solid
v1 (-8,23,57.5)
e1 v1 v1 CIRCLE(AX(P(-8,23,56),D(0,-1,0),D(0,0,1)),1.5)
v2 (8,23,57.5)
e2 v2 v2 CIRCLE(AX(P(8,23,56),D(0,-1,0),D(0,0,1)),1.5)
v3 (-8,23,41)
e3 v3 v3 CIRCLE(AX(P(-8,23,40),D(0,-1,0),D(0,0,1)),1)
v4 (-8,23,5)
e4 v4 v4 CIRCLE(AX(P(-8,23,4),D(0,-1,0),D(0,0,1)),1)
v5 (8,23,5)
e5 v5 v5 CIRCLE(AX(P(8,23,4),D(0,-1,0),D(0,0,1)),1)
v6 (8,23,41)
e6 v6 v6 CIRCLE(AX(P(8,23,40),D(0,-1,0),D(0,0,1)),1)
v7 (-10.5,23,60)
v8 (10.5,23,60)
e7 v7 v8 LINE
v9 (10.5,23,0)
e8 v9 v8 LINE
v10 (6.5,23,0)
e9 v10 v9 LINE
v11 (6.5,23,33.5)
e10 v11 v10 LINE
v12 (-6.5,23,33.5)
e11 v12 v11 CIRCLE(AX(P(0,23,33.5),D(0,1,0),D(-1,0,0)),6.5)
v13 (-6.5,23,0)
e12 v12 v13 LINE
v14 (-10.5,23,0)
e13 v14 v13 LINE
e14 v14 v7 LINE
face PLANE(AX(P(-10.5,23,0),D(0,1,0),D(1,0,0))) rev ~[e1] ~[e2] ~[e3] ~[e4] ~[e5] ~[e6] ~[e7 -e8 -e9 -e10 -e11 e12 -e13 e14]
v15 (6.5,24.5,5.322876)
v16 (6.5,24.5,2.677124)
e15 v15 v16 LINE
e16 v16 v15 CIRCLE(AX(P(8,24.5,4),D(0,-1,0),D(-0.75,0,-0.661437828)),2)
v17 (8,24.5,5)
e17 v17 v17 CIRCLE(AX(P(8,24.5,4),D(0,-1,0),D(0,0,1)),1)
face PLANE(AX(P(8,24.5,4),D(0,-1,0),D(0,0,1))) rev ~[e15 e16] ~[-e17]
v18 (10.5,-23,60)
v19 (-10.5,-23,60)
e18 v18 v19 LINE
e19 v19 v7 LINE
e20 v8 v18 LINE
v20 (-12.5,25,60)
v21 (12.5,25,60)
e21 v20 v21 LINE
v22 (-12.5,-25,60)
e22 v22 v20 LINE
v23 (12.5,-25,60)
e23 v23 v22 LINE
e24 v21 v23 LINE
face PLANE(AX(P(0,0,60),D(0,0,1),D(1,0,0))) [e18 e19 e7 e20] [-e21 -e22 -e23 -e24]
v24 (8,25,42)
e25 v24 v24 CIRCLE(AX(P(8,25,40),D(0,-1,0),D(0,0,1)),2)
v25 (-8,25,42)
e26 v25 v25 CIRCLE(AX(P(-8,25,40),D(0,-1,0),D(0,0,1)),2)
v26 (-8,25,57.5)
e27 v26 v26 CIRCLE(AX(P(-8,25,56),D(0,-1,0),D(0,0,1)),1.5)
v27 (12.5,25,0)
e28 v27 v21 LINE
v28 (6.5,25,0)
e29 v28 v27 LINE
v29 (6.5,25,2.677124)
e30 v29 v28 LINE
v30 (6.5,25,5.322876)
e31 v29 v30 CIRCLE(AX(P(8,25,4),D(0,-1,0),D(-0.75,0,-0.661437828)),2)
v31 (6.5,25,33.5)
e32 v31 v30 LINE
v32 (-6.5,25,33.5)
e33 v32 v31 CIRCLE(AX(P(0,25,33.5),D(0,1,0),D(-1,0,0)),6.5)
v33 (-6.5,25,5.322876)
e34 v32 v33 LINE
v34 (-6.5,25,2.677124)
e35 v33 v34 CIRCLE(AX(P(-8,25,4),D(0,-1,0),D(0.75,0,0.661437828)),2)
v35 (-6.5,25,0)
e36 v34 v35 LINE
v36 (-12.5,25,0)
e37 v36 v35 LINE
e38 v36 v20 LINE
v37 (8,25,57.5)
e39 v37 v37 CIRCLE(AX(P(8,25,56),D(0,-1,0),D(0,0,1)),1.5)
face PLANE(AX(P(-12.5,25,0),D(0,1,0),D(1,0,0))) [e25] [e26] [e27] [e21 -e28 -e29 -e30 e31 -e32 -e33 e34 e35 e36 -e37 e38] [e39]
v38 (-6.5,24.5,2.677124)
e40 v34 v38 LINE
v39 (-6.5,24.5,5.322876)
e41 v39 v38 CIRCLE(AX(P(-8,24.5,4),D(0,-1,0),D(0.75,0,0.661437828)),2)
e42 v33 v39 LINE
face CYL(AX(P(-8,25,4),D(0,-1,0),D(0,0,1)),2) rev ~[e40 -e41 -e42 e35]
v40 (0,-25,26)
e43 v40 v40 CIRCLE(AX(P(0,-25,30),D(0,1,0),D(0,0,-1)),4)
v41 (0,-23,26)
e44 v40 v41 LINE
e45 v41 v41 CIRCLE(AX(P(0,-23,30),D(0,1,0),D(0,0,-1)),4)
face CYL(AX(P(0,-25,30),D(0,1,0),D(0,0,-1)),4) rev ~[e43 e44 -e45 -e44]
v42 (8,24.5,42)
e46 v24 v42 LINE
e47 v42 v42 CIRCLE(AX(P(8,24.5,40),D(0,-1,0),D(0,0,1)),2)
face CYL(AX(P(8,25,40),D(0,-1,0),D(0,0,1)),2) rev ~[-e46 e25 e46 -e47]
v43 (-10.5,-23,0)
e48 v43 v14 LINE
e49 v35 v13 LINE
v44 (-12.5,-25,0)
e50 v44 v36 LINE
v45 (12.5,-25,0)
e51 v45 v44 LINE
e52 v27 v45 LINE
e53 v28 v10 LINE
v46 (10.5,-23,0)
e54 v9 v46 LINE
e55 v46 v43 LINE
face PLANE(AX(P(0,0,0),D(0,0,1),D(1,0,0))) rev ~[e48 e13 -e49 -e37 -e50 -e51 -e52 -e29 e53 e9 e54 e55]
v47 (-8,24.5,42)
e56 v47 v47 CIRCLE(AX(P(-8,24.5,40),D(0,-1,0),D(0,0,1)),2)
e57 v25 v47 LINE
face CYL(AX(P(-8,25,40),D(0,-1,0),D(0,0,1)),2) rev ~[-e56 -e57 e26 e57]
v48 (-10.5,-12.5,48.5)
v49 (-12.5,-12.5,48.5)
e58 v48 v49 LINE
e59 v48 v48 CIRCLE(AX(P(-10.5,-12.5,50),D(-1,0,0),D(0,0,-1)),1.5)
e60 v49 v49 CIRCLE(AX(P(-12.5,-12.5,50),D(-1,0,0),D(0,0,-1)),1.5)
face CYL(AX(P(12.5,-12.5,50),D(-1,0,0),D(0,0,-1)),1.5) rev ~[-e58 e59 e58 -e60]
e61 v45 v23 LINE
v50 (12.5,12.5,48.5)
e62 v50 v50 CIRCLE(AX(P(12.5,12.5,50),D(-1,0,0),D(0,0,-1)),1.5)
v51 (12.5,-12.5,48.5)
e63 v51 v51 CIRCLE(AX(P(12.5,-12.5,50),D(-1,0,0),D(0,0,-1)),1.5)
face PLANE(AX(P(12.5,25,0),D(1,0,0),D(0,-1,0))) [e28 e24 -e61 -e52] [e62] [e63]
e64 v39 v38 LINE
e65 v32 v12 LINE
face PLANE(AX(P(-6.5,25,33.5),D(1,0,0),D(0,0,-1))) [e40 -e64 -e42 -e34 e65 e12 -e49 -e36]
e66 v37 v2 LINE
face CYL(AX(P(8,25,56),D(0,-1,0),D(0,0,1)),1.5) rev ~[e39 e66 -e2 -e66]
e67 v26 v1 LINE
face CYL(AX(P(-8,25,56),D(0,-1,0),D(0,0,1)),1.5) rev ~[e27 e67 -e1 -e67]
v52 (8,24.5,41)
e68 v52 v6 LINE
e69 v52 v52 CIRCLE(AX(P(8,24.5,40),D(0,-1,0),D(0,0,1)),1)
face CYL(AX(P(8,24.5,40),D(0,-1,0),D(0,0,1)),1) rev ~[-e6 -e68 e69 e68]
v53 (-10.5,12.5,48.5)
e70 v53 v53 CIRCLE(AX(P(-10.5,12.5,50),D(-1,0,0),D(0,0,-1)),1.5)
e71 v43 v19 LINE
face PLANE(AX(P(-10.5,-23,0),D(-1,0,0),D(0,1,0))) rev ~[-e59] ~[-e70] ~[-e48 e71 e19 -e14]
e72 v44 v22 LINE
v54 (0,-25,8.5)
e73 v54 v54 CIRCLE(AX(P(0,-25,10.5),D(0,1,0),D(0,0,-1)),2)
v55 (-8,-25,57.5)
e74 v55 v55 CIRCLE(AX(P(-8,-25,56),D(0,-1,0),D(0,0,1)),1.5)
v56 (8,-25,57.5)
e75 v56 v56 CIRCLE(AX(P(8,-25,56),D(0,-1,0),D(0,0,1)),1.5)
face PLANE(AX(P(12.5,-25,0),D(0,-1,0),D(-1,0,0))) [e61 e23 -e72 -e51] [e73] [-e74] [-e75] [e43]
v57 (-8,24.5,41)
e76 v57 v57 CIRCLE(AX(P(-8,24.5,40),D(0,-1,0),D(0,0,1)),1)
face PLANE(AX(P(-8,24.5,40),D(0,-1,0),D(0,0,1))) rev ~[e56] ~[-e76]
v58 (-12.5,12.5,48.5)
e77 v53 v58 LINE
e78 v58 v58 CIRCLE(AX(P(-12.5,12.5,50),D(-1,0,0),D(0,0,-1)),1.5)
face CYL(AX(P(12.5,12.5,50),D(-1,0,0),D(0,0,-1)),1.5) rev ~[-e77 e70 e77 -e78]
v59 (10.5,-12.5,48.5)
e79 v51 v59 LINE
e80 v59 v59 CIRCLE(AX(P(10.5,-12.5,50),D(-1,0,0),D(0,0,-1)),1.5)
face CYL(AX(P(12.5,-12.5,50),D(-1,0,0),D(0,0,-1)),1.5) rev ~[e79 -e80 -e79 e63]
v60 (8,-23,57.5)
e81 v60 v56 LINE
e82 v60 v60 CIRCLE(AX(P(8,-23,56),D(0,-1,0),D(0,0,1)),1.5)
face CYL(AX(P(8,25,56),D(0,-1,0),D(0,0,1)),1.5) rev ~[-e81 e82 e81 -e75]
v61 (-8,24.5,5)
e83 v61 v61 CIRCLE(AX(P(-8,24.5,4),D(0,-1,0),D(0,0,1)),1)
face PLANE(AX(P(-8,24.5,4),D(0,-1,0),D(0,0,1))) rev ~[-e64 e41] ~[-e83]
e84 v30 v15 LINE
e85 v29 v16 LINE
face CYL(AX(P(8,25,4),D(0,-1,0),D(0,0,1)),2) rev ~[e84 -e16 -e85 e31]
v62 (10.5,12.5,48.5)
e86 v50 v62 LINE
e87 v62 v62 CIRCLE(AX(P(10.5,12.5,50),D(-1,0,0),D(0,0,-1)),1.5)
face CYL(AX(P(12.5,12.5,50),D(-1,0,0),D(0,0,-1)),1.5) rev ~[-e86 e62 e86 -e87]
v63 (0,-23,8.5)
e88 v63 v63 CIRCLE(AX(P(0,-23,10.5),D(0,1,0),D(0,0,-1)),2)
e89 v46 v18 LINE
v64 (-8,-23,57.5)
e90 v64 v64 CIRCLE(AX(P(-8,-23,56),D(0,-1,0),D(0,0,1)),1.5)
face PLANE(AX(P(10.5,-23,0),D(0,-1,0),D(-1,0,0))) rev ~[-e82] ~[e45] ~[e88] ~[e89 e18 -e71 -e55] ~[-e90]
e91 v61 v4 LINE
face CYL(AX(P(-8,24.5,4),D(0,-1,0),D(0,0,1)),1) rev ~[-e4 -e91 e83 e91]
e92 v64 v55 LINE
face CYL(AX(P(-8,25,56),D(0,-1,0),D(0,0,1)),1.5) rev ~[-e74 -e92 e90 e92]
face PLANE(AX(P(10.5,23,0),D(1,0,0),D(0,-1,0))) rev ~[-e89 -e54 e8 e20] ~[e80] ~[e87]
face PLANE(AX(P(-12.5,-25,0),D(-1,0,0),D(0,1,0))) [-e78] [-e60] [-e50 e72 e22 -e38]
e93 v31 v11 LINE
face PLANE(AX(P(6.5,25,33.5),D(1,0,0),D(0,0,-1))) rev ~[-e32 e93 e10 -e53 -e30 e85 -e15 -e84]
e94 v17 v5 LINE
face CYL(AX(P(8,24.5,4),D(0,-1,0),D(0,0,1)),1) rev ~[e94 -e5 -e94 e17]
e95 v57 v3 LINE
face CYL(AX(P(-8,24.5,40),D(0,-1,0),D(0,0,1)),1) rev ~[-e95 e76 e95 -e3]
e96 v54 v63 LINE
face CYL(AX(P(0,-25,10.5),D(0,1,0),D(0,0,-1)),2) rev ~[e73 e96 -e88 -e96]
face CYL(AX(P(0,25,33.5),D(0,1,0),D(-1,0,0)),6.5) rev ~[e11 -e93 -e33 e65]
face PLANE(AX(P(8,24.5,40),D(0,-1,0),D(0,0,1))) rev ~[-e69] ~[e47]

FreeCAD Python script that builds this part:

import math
import FreeCAD as App
import Part
import Sketcher

V = App.Vector

doc = App.newDocument("Part")
params = doc.addObject("Spreadsheet::Sheet", "Params")
for row, (alias, value) in enumerate([
    ("sketch1_width", "25 mm"),
    ("sketch1_width2", "21 mm"),
    ("sketch1_height", "50 mm"),
    ("sketch1_height2", "46 mm"),
    ("pad1_length", "60 mm"),
    ("sketch2_radius", "6.5 mm"),
    ("sketch2_height", "33.5 mm"),
    ("pocket1_length", "2 mm"),
    ("sketch3_diameter", "2 mm"),
    ("hole_diameter", "2 mm"),
    ("hole_depth", "2 mm"),
    ("hole_cbore_diameter", "4 mm"),
    ("hole_cbore_depth", "0.5 mm"),
    ("sketch4_diameter", "4 mm"),
    ("hole2_diameter", "4 mm"),
    ("sketch5_diameter", "3 mm"),
    ("hole3_diameter", "3 mm"),
    ("sketch6_diameter", "8 mm"),
    ("hole4_diameter", "8 mm"),
    ("sketch7_diameter", "3 mm"),
    ("hole5_diameter", "3 mm"),
], start=1):
    params.set(f"A{row}", alias)
    params.set(f"B{row}", "=" + value)
    params.setAlias(f"B{row}", alias)

body = doc.addObject("PartDesign::Body", "Body")

# Sketch on XY plane
sketch1 = body.newObject("Sketcher::SketchObject", "Sketch")
sketch1.AttachmentSupport = (doc.getObject("XY_Plane"), [""])
sketch1.MapMode = "FlatFace"
sketch1.addGeometry(Part.LineSegment(V(12, 25, 0), V(-12, 25, 0)), False)
sketch1.addGeometry(Part.LineSegment(V(-12, 25, 0), V(-12, -25, 0)), False)
sketch1.addGeometry(Part.LineSegment(V(-12, -25, 0), V(12, -25, 0)), False)
sketch1.addGeometry(Part.LineSegment(V(12, -25, 0), V(12, 25, 0)), False)
sketch1.addGeometry(Part.LineSegment(V(-10, -23, 0), V(-10, 23, 0)), False)
sketch1.addGeometry(Part.LineSegment(V(-10, 23, 0), V(10, 23, 0)), False)
sketch1.addGeometry(Part.LineSegment(V(10, 23, 0), V(10, -23, 0)), False)
sketch1.addGeometry(Part.LineSegment(V(10, -23, 0), V(-10, -23, 0)), False)
sketch1.addConstraint(Sketcher.Constraint("Coincident", 0, 2, 1, 1))
sketch1.addConstraint(Sketcher.Constraint("Coincident", 1, 2, 2, 1))
sketch1.addConstraint(Sketcher.Constraint("Coincident", 2, 2, 3, 1))
sketch1.addConstraint(Sketcher.Constraint("Coincident", 3, 2, 0, 1))
sketch1.addConstraint(Sketcher.Constraint("Coincident", 4, 2, 5, 1))
sketch1.addConstraint(Sketcher.Constraint("Coincident", 5, 2, 6, 1))
sketch1.addConstraint(Sketcher.Constraint("Coincident", 6, 2, 7, 1))
sketch1.addConstraint(Sketcher.Constraint("Coincident", 7, 2, 4, 1))
sketch1.addConstraint(Sketcher.Constraint("Horizontal", 0))
sketch1.addConstraint(Sketcher.Constraint("Vertical", 1))
sketch1.addConstraint(Sketcher.Constraint("Horizontal", 2))
sketch1.addConstraint(Sketcher.Constraint("Vertical", 3))
sketch1.addConstraint(Sketcher.Constraint("Vertical", 4))
sketch1.addConstraint(Sketcher.Constraint("Horizontal", 5))
sketch1.addConstraint(Sketcher.Constraint("Vertical", 6))
sketch1.addConstraint(Sketcher.Constraint("Horizontal", 7))
sketch1.addConstraint(Sketcher.Constraint("Symmetric", 0, 2, 2, 2, -1, 1))
sketch1.addConstraint(Sketcher.Constraint("Symmetric", 4, 2, 6, 2, -1, 1))
sketch1.addConstraint(Sketcher.Constraint("DistanceX", 0, 2, 0, 1, 25.0))
sketch1.addConstraint(Sketcher.Constraint("DistanceX", 5, 1, 5, 2, 21.0))
sketch1.addConstraint(Sketcher.Constraint("DistanceY", 1, 2, 1, 1, 50.0))
sketch1.addConstraint(Sketcher.Constraint("DistanceY", 4, 1, 4, 2, 46.0))
sketch1.setExpression("Constraints[18]", "Params.sketch1_width")
sketch1.setExpression("Constraints[19]", "Params.sketch1_width2")
sketch1.setExpression("Constraints[20]", "Params.sketch1_height")
sketch1.setExpression("Constraints[21]", "Params.sketch1_height2")
pad1 = body.newObject("PartDesign::Pad", "Pad")
pad1.Profile = sketch1
pad1.setExpression("Length", "Params.pad1_length")

# Sketch on XZ plane
sketch2 = body.newObject("Sketcher::SketchObject", "Sketch001")
sketch2.AttachmentSupport = (doc.getObject("XZ_Plane"), [""])
sketch2.MapMode = "FlatFace"
sketch2.AttachmentOffset = App.Placement(V(0, 0, -25), App.Rotation())
sketch2.addGeometry(Part.LineSegment(V(6, 0, 0), V(-6, 0, 0)), False)
sketch2.addGeometry(Part.LineSegment(V(-6, 0, 0), V(-6, 34, 0)), False)
sketch2.addGeometry(Part.ArcOfCircle(Part.Circle(V(0, 34, 0), V(0, 0, 1), 6), math.radians(0), math.radians(180)), False)
sketch2.addGeometry(Part.LineSegment(V(6, 34, 0), V(6, 0, 0)), False)
sketch2.addConstraint(Sketcher.Constraint("Coincident", 0, 2, 1, 1))
sketch2.addConstraint(Sketcher.Constraint("Tangent", 1, 2, 2, 2))
sketch2.addConstraint(Sketcher.Constraint("Tangent", 2, 1, 3, 1))
sketch2.addConstraint(Sketcher.Constraint("Coincident", 3, 2, 0, 1))
sketch2.addConstraint(Sketcher.Constraint("Horizontal", 0))
sketch2.addConstraint(Sketcher.Constraint("Vertical", 1))
sketch2.addConstraint(Sketcher.Constraint("Vertical", 3))
sketch2.addConstraint(Sketcher.Constraint("Symmetric", 0, 2, 3, 2, -1, 1))
sketch2.addConstraint(Sketcher.Constraint("Radius", 2, 6.5))
sketch2.addConstraint(Sketcher.Constraint("DistanceY", 1, 1, 1, 2, 33.5))
sketch2.setExpression("Constraints[8]", "Params.sketch2_radius")
sketch2.setExpression("Constraints[9]", "Params.sketch2_height")
pocket1 = body.newObject("PartDesign::Pocket", "Pocket")
pocket1.Profile = sketch2
pocket1.setExpression("Length", "Params.pocket1_length")
pocket1.Reversed = True

# Sketch on XZ plane
sketch3 = body.newObject("Sketcher::SketchObject", "Sketch002")
sketch3.AttachmentSupport = (doc.getObject("XZ_Plane"), [""])
sketch3.MapMode = "FlatFace"
sketch3.AttachmentOffset = App.Placement(V(0, 0, -25), App.Rotation())
sketch3.addGeometry(Part.Circle(V(-8, 4, 0), V(0, 0, 1), 1), False)
sketch3.addGeometry(Part.Circle(V(8, 4, 0), V(0, 0, 1), 1), False)
sketch3.addGeometry(Part.Circle(V(8, 40, 0), V(0, 0, 1), 1), False)
sketch3.addGeometry(Part.Circle(V(-8, 40, 0), V(0, 0, 1), 1), False)
sketch3.addConstraint(Sketcher.Constraint("Equal", 0, 1))
sketch3.addConstraint(Sketcher.Constraint("Equal", 1, 2))
sketch3.addConstraint(Sketcher.Constraint("Equal", 2, 3))
sketch3.addConstraint(Sketcher.Constraint("Symmetric", 0, 3, 1, 3, -2))
sketch3.addConstraint(Sketcher.Constraint("Symmetric", 2, 3, 3, 3, -2))
sketch3.addConstraint(Sketcher.Constraint("Vertical", 1, 3, 2, 3))
sketch3.addConstraint(Sketcher.Constraint("Diameter", 0, 2.0))
sketch3.addConstraint(Sketcher.Constraint("DistanceX", 0, 3, -1, 1, 8.0))
sketch3.addConstraint(Sketcher.Constraint("DistanceY", -1, 1, 0, 3, 4.0))
sketch3.addConstraint(Sketcher.Constraint("DistanceY", -1, 1, 2, 3, 40.0))
sketch3.setExpression("Constraints[6]", "Params.sketch3_diameter")
doc.recompute()
hole = body.newObject("PartDesign::Hole", "Hole")
hole.Profile = sketch3
hole.ThreadType = "None"
hole.setExpression("Diameter", "Params.hole_diameter")
hole.DepthType = "Dimension"
hole.setExpression("Depth", "Params.hole_depth")
hole.DrillPoint = "Angled"
hole.DrillPointAngle = 118
hole.HoleCutType = "Counterbore"
hole.setExpression("HoleCutDiameter", "Params.hole_cbore_diameter")
hole.setExpression("HoleCutDepth", "Params.hole_cbore_depth")
hole.Reversed = True

# Sketch on XZ plane
sketch4 = body.newObject("Sketcher::SketchObject", "Sketch003")
sketch4.AttachmentSupport = (doc.getObject("XZ_Plane"), [""])
sketch4.MapMode = "FlatFace"
sketch4.AttachmentOffset = App.Placement(V(0, 0, 25), App.Rotation())
sketch4.addGeometry(Part.Circle(V(0, 10.5, 0), V(0, 0, 1), 2), False)
sketch4.addConstraint(Sketcher.Constraint("PointOnObject", 0, 3, -2))
sketch4.addConstraint(Sketcher.Constraint("Diameter", 0, 4.0))
sketch4.addConstraint(Sketcher.Constraint("DistanceY", -1, 1, 0, 3, 10.5))
sketch4.setExpression("Constraints[1]", "Params.sketch4_diameter")
doc.recompute()
hole2 = body.newObject("PartDesign::Hole", "Hole001")
hole2.Profile = sketch4
hole2.ThreadType = "None"
hole2.setExpression("Diameter", "Params.hole2_diameter")
hole2.DepthType = "ThroughAll"

# Sketch on XZ plane
sketch5 = body.newObject("Sketcher::SketchObject", "Sketch004")
sketch5.AttachmentSupport = (doc.getObject("XZ_Plane"), [""])
sketch5.MapMode = "FlatFace"
sketch5.AttachmentOffset = App.Placement(V(0, 0, -25), App.Rotation())
sketch5.addGeometry(Part.Circle(V(-8, 56, 0), V(0, 0, 1), 1.5), False)
sketch5.addGeometry(Part.Circle(V(8, 56, 0), V(0, 0, 1), 1.5), False)
sketch5.addConstraint(Sketcher.Constraint("Equal", 0, 1))
sketch5.addConstraint(Sketcher.Constraint("Symmetric", 0, 3, 1, 3, -2))
sketch5.addConstraint(Sketcher.Constraint("Diameter", 0, 3.0))
sketch5.addConstraint(Sketcher.Constraint("DistanceX", 0, 3, -1, 1, 8.0))
sketch5.addConstraint(Sketcher.Constraint("DistanceY", -1, 1, 0, 3, 56.0))
sketch5.setExpression("Constraints[2]", "Params.sketch5_diameter")
doc.recompute()
hole3 = body.newObject("PartDesign::Hole", "Hole002")
hole3.Profile = sketch5
hole3.ThreadType = "None"
hole3.setExpression("Diameter", "Params.hole3_diameter")
hole3.DepthType = "ThroughAll"
hole3.Reversed = True

# Sketch on XZ plane
sketch6 = body.newObject("Sketcher::SketchObject", "Sketch005")
sketch6.AttachmentSupport = (doc.getObject("XZ_Plane"), [""])
sketch6.MapMode = "FlatFace"
sketch6.AttachmentOffset = App.Placement(V(0, 0, 25), App.Rotation())
sketch6.addGeometry(Part.Circle(V(0, 30, 0), V(0, 0, 1), 4), False)
sketch6.addConstraint(Sketcher.Constraint("PointOnObject", 0, 3, -2))
sketch6.addConstraint(Sketcher.Constraint("Diameter", 0, 8.0))
sketch6.addConstraint(Sketcher.Constraint("DistanceY", -1, 1, 0, 3, 30.0))
sketch6.setExpression("Constraints[1]", "Params.sketch6_diameter")
doc.recompute()
hole4 = body.newObject("PartDesign::Hole", "Hole003")
hole4.Profile = sketch6
hole4.ThreadType = "None"
hole4.setExpression("Diameter", "Params.hole4_diameter")
hole4.DepthType = "ThroughAll"

# Sketch on YZ plane
sketch7 = body.newObject("Sketcher::SketchObject", "Sketch006")
sketch7.AttachmentSupport = (doc.getObject("YZ_Plane"), [""])
sketch7.MapMode = "FlatFace"
sketch7.AttachmentOffset = App.Placement(V(0, 0, 12.5), App.Rotation())
sketch7.addGeometry(Part.Circle(V(-12.5, 50, 0), V(0, 0, 1), 1.5), False)
sketch7.addGeometry(Part.Circle(V(12.5, 50, 0), V(0, 0, 1), 1.5), False)
sketch7.addConstraint(Sketcher.Constraint("Equal", 0, 1))
sketch7.addConstraint(Sketcher.Constraint("Symmetric", 0, 3, 1, 3, -2))
sketch7.addConstraint(Sketcher.Constraint("Diameter", 0, 3.0))
sketch7.addConstraint(Sketcher.Constraint("DistanceY", -1, 1, 0, 3, 50.0))
sketch7.addConstraint(Sketcher.Constraint("DistanceX", 0, 3, 1, 3, 25.0))
sketch7.setExpression("Constraints[2]", "Params.sketch7_diameter")
doc.recompute()
hole5 = body.newObject("PartDesign::Hole", "Hole004")
hole5.Profile = sketch7
hole5.ThreadType = "None"
hole5.setExpression("Diameter", "Params.hole5_diameter")
hole5.DepthType = "ThroughAll"

doc.recompute()
